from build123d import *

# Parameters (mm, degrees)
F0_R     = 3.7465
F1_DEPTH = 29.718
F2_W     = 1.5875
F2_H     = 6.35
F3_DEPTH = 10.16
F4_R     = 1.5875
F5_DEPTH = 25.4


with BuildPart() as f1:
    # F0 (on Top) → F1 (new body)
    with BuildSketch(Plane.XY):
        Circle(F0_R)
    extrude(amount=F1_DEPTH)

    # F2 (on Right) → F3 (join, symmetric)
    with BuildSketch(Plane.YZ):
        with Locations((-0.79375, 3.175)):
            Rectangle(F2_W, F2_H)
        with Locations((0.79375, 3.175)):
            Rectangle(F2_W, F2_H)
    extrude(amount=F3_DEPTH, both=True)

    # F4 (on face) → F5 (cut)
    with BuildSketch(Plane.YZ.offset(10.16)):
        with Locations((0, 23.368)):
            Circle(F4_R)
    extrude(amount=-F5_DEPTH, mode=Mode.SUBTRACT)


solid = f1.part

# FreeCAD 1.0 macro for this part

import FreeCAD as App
import Part
import Sketcher

V = App.Vector
Q = App.Units.Quantity


def add_polygon(sketch, points):
    """Adds a closed chain of lines whose ends are joined by coincident constraints."""
    first, n = sketch.GeometryCount, len(points)
    for a, b in zip(points, points[1:] + points[:1]):
        sketch.addGeometry(Part.LineSegment(App.Vector(*a, 0), App.Vector(*b, 0)), False)
    for i in range(n):
        sketch.addConstraint(Sketcher.Constraint("Coincident", first + i, 2, first + (i + 1) % n, 1))

doc = App.newDocument("Part")
body = doc.addObject("PartDesign::Body", "Body")

sketch1 = body.newObject("Sketcher::SketchObject", "Sketch")
sketch1.AttachmentSupport = (doc.getObject("XY_Plane"), [""])
sketch1.MapMode = "FlatFace"
sketch1.addGeometry(Part.Circle(V(0, 0, 0), V(0, 0, 1), 3.7), False)
sketch1.addConstraint(Sketcher.Constraint("Coincident", 0, 3, -1, 1))
sketch1.addConstraint(Sketcher.Constraint("Diameter", 0, Q("0.295 in")))
pad1 = body.newObject("PartDesign::Pad", "Pad")
pad1.Profile = sketch1
pad1.Length = Q("1.17 in")

sketch2 = body.newObject("Sketcher::SketchObject", "Sketch001")
sketch2.AttachmentSupport = (doc.getObject("YZ_Plane"), [""])
sketch2.MapMode = "FlatFace"
add_polygon(sketch2, [(-1.6, 6.3), (-1.6, 0), (1.6, 0), (1.6, 6.3)])
sketch2.addConstraint(Sketcher.Constraint("Vertical", 0))
sketch2.addConstraint(Sketcher.Constraint("Horizontal", 1))
sketch2.addConstraint(Sketcher.Constraint("Vertical", 2))
sketch2.addConstraint(Sketcher.Constraint("Horizontal", 3))
sketch2.addConstraint(Sketcher.Constraint("Symmetric", 0, 2, 1, 2, -1, 1))
sketch2.addConstraint(Sketcher.Constraint("DistanceY", 0, 2, 0, 1, Q("0.25 in")))
sketch2.addConstraint(Sketcher.Constraint("DistanceX", 1, 1, 1, 2, Q("0.125 in")))
pad2 = body.newObject("PartDesign::Pad", "Pad001")
pad2.Profile = sketch2
pad2.Length = Q("0.8 in")
pad2.Midplane = True

sketch3 = body.newObject("Sketcher::SketchObject", "Sketch002")
sketch3.AttachmentSupport = (doc.getObject("YZ_Plane"), [""])
sketch3.MapMode = "FlatFace"
sketch3.AttachmentOffset = App.Placement(V(0, 0, 0.4 * 25.4), App.Rotation())
sketch3.addGeometry(Part.Circle(V(0, 23.4, 0), V(0, 0, 1), 1.6), False)
sketch3.addConstraint(Sketcher.Constraint("PointOnObject", 0, 3, -2))
sketch3.addConstraint(Sketcher.Constraint("Diameter", 0, Q("0.125 in")))
sketch3.addConstraint(Sketcher.Constraint("DistanceY", -1, 1, 0, 3, Q("0.92 in")))
pocket1 = body.newObject("PartDesign::Pocket", "Pocket")
pocket1.Profile = sketch3
pocket1.Length = Q("1 in")

doc.recompute()
